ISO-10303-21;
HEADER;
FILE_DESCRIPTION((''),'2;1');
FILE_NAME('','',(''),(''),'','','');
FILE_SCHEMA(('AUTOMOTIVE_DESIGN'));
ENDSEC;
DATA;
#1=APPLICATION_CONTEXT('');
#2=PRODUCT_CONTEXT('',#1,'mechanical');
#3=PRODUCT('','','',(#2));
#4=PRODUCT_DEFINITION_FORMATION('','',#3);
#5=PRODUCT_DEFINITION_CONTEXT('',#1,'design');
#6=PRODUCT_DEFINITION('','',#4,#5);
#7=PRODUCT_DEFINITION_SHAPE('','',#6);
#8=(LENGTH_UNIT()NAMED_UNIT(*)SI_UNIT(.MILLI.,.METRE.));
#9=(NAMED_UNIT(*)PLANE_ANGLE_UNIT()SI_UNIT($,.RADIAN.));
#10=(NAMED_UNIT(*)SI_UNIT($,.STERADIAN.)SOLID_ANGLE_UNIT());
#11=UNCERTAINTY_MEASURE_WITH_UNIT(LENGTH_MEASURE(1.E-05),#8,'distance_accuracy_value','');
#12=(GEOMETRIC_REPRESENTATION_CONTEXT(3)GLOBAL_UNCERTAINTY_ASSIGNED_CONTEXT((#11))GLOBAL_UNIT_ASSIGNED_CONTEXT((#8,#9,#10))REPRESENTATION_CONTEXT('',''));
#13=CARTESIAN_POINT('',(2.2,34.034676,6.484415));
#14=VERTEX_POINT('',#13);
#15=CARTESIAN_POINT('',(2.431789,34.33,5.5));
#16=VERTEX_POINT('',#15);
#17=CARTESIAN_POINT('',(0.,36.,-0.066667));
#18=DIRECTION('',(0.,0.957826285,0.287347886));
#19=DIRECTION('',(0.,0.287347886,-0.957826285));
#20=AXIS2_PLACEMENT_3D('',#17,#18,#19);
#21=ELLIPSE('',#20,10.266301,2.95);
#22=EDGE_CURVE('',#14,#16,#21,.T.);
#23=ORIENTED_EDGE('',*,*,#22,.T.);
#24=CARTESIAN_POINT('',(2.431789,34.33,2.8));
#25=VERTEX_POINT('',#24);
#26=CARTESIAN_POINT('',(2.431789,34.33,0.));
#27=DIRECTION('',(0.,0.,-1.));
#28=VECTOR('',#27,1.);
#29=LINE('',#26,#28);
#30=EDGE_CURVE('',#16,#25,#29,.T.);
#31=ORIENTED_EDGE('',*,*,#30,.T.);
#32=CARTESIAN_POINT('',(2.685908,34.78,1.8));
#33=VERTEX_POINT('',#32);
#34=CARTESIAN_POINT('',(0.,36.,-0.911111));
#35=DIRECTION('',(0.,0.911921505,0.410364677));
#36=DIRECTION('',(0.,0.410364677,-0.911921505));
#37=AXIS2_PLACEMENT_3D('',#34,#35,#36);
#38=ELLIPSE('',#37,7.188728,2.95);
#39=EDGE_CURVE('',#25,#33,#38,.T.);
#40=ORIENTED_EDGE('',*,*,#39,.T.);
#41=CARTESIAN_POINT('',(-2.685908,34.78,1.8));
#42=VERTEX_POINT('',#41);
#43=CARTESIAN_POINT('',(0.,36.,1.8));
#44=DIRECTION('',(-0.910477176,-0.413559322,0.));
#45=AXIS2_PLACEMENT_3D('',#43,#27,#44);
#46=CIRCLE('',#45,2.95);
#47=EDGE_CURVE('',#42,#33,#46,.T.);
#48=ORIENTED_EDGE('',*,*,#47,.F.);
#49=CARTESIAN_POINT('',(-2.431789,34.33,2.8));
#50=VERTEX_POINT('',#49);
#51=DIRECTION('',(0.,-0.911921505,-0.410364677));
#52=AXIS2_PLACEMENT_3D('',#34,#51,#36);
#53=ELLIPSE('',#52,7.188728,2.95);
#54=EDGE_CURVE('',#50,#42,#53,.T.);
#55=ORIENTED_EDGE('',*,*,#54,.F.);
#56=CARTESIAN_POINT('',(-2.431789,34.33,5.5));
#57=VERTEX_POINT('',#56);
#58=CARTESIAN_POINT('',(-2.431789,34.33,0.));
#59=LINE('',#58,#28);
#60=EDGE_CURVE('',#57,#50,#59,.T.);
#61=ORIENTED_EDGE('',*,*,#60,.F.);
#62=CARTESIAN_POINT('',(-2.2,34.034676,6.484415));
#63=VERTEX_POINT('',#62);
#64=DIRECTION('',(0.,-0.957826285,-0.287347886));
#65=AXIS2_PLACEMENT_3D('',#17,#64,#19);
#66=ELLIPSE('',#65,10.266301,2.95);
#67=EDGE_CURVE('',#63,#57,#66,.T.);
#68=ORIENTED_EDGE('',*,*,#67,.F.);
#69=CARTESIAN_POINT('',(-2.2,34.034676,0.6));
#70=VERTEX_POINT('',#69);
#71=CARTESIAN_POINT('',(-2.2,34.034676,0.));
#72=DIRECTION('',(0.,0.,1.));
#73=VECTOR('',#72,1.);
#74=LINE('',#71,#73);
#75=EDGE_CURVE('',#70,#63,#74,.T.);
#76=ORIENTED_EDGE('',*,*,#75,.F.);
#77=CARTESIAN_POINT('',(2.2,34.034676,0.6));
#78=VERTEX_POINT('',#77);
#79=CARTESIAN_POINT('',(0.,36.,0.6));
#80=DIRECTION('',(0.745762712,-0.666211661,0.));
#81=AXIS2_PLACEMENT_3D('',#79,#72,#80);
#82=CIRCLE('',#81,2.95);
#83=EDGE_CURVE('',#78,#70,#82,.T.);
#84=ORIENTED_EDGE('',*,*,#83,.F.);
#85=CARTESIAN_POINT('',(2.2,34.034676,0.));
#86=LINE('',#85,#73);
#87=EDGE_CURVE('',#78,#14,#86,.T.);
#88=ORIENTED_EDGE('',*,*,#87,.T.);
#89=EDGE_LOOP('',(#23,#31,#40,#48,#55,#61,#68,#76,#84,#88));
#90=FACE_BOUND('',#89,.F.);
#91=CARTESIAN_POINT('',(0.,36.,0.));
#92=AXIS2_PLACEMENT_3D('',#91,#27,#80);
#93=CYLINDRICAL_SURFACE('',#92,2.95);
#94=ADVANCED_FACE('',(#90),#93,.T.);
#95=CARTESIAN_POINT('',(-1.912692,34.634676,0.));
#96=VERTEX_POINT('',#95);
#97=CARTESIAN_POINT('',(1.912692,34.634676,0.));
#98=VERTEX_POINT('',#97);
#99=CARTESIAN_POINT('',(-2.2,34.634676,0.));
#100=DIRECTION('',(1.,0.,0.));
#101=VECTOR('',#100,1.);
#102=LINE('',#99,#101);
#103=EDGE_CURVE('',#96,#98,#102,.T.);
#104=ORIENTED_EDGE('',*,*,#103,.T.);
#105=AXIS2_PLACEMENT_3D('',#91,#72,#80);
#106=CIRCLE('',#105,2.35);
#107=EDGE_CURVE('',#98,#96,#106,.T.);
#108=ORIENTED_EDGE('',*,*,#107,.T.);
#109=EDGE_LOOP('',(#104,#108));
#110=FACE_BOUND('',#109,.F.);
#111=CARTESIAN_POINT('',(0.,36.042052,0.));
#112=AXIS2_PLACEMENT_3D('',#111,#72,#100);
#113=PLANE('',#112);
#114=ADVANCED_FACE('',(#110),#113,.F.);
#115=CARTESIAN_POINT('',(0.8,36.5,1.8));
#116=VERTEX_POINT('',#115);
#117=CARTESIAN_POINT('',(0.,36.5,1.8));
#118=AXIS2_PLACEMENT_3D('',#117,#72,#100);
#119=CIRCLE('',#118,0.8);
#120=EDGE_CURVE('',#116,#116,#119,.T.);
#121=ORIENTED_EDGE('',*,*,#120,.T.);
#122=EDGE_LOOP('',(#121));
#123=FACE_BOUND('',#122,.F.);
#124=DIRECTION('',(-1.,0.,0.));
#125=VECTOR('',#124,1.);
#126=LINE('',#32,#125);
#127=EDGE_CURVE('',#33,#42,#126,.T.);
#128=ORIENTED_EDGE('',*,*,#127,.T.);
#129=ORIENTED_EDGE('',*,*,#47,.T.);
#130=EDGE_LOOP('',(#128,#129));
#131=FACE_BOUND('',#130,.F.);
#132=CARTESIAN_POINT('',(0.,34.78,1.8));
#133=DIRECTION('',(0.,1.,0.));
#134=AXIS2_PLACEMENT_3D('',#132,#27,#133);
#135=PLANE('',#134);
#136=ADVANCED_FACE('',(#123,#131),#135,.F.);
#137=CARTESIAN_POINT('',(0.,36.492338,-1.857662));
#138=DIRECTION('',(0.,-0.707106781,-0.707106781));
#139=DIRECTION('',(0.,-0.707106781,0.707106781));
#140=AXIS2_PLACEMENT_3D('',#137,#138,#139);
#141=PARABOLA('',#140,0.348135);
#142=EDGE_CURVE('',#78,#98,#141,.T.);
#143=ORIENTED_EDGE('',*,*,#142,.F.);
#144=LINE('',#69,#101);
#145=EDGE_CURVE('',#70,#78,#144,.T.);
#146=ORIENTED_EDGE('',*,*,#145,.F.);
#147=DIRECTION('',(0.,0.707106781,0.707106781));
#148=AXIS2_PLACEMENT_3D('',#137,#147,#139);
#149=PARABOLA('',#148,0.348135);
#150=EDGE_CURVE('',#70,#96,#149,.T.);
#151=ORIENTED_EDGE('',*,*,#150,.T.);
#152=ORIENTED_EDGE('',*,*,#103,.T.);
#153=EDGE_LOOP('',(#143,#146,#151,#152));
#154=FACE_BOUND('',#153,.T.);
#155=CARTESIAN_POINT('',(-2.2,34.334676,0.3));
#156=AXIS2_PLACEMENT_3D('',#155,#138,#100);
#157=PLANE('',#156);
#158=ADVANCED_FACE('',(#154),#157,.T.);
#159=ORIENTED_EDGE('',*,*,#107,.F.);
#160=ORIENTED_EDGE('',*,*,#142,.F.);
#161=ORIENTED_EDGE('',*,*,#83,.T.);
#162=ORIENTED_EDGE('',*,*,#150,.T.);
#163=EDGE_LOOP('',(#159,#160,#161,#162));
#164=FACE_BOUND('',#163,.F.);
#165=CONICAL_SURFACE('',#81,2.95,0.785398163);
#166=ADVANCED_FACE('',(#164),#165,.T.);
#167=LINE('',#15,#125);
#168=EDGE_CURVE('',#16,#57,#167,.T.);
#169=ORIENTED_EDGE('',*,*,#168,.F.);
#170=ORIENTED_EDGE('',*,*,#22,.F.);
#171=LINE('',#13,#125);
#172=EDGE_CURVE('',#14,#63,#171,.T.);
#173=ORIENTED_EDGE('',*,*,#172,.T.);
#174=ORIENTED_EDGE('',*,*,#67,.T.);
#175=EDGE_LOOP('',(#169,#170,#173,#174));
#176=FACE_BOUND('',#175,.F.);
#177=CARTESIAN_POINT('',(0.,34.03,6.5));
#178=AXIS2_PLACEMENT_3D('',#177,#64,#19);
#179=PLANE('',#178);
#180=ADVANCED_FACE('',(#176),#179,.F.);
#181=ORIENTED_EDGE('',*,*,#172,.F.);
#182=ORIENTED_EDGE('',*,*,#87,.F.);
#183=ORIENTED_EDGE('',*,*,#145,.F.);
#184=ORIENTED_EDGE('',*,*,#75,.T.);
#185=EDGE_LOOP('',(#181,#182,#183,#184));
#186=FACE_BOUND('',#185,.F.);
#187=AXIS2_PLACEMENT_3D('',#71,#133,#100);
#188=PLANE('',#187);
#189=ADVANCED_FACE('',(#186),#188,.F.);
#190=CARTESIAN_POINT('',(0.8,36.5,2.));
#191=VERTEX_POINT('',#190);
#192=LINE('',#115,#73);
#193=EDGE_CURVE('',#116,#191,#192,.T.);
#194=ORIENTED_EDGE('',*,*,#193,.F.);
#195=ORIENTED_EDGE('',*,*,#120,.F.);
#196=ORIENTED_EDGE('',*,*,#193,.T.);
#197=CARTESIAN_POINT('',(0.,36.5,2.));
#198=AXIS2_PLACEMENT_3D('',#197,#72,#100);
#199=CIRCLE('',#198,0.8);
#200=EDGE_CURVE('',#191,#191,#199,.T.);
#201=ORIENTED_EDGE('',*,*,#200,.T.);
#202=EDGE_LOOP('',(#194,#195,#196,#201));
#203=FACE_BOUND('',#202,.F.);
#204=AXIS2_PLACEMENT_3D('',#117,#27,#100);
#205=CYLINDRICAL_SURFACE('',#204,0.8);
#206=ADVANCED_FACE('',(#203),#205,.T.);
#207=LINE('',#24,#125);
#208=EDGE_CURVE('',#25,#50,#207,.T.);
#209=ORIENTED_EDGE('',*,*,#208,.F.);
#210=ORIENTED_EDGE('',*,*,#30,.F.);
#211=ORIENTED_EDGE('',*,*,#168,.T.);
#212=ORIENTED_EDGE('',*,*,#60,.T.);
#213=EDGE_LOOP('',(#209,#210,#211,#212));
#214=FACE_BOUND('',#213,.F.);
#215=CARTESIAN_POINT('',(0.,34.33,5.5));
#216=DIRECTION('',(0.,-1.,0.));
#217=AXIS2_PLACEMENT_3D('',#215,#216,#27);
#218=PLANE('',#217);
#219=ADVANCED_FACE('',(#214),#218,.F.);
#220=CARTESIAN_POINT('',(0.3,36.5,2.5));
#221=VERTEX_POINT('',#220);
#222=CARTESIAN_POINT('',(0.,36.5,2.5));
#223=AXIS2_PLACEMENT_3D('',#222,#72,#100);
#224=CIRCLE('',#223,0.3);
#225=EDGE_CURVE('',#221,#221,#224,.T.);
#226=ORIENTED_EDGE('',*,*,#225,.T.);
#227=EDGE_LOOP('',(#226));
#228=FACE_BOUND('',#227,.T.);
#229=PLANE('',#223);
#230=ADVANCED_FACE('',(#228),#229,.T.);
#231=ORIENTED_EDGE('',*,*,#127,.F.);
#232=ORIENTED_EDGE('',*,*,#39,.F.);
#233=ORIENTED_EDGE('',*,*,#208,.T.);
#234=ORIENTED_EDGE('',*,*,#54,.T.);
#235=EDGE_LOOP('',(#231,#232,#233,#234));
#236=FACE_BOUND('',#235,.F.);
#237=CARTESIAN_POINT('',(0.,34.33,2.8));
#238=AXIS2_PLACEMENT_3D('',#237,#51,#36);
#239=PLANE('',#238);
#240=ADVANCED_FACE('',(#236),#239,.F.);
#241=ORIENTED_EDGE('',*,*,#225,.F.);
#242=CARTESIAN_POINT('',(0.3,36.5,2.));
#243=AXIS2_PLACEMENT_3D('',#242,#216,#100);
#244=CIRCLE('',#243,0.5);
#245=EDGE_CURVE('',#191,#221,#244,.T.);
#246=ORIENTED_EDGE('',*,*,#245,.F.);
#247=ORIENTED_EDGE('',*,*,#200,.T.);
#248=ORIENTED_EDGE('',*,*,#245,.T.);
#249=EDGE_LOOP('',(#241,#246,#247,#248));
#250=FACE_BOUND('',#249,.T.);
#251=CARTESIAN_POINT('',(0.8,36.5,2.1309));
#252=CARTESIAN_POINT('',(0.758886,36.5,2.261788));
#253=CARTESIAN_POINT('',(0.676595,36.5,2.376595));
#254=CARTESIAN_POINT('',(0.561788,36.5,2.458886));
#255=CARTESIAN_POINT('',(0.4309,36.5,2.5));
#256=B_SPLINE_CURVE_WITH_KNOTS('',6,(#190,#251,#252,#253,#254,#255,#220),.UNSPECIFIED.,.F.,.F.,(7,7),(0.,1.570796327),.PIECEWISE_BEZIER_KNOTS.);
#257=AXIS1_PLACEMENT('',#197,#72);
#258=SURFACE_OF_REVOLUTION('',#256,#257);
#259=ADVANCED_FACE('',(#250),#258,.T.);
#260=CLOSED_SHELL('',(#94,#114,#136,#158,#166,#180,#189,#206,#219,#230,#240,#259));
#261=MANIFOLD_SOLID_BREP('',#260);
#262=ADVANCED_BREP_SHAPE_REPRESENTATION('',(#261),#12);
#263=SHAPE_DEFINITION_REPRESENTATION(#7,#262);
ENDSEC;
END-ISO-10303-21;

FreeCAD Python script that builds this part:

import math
import FreeCAD as App
import Part
import Sketcher
from FreeCAD import Vector
Q = App.Units.Quantity


def edges_at(feature, points):
    """Names of the edges that pass closest to the given points."""
    edges = feature.Shape.Edges
    near = lambda p: min(range(len(edges)), key=lambda i: edges[i].distToShape(Part.Vertex(*p))[0])
    return sorted({f"Edge{near(p) + 1}" for p in points})


def add_polygon(sketch, points):
    """Adds a closed chain of lines whose ends are joined by coincident constraints."""
    first, n = sketch.GeometryCount, len(points)
    for a, b in zip(points, points[1:] + points[:1]):
        sketch.addGeometry(Part.LineSegment(App.Vector(*a, 0), App.Vector(*b, 0)), False)
    for i in range(n):
        sketch.addConstraint(Sketcher.Constraint("Coincident", first + i, 2, first + (i + 1) % n, 1))

doc = App.newDocument("Part")
params = doc.addObject("Spreadsheet::Sheet", "Params")
for row, (alias, value) in enumerate([
    ("sketch1_radius", "2.95 mm"),
    ("sketch1_width", "4.4 mm"),
    ("pad1_length", "6.5 mm"),
    ("sketch2_height", "2.7 mm"),
    ("sketch2_height2", "4.7 mm"),
    ("sketch2_width", "5.22 mm"),
    ("sketch2_width2", "5.97 mm"),
    ("sketch3_diameter", "1.6 mm"),
    ("pad2_length", "0.7 mm"),
    ("fillet_radius", "0.5 mm"),
    ("chamfer_size", "0.6 mm"),
], start=1):
    params.set(f"A{row}", alias)
    params.set(f"B{row}", "=" + value)
    params.setAlias(f"B{row}", alias)

body = doc.addObject("PartDesign::Body", "Body")

# Sketch on XY plane
sketch1 = body.newObject("Sketcher::SketchObject", "Sketch")
sketch1.AttachmentSupport = (doc.getObject("XY_Plane"), [""])
sketch1.MapMode = "FlatFace"
sketch1.addGeometry([
    Part.ArcOfCircle(Part.Circle(Vector(0, 0, 0), Vector(0, 0, 1), 3), math.radians(-42), math.radians(222)),
    Part.LineSegment(Vector(-2.2, -2, 0), Vector(2.2, -2, 0)),
], False)
sketch1.addConstraint([
    Sketcher.Constraint("Coincident", 0, 1, 1, 2),
    Sketcher.Constraint("Coincident", 1, 1, 0, 2),
    Sketcher.Constraint("Horizontal", 1),
    Sketcher.Constraint("Coincident", 0, 3, -1, 1),
    Sketcher.Constraint("Radius", 0, Q("2.95 mm")),
    Sketcher.Constraint("DistanceX", 1, 1, 1, 2, Q("4.4 mm")),
])
sketch1.setExpression("Constraints[4]", "Params.sketch1_radius")
sketch1.setExpression("Constraints[5]", "Params.sketch1_width")
pad1 = body.newObject("PartDesign::Pad", "Pad")
pad1.Profile = sketch1
pad1.setExpression("Length", "Params.pad1_length")

# Sketch on YZ plane
sketch2 = body.newObject("Sketcher::SketchObject", "Sketch001")
sketch2.AttachmentSupport = (doc.getObject("YZ_Plane"), [""])
sketch2.MapMode = "FlatFace"
add_polygon(sketch2, [(-2, 6.5), (-1.7, 5.5), (-1.7, 2.8), (-1.2, 1.8), (4, 1.8), (4, 6.5)])  # lines 0-5
sketch2.addConstraint([
    Sketcher.Constraint("Vertical", 1),
    Sketcher.Constraint("Horizontal", 3),
    Sketcher.Constraint("Vertical", 4),
    Sketcher.Constraint("Horizontal", 5),
    Sketcher.Constraint("DistanceY", 1, 2, 1, 1, Q("2.7 mm")),
    Sketcher.Constraint("DistanceY", 4, 1, 4, 2, Q("4.7 mm")),
    Sketcher.Constraint("DistanceX", -1, 1, 3, 2, Q("4 mm")),
    Sketcher.Constraint("DistanceY", 2, 2, 1, 2, Q("1 mm")),
    Sketcher.Constraint("DistanceX", 3, 1, 3, 2, Q("5.22 mm")),
    Sketcher.Constraint("DistanceX", 5, 2, 5, 1, Q("5.97 mm")),
    Sketcher.Constraint("DistanceY", -1, 1, 0, 2, Q("5.5 mm")),
    Sketcher.Constraint("DistanceX", 5, 2, 0, 2, Q("0.3 mm")),
])
sketch2.setExpression("Constraints[10]", "Params.sketch2_height")
sketch2.setExpression("Constraints[11]", "Params.sketch2_height2")
sketch2.setExpression("Constraints[14]", "Params.sketch2_width")
sketch2.setExpression("Constraints[15]", "Params.sketch2_width2")
pocket1 = body.newObject("PartDesign::Pocket", "Pocket")
pocket1.Profile = sketch2
pocket1.Type = "ThroughAll"
pocket1.Midplane = True

# Sketch on XY plane
sketch3 = body.newObject("Sketcher::SketchObject", "Sketch002")
sketch3.AttachmentSupport = (doc.getObject("XY_Plane"), [""])
sketch3.MapMode = "FlatFace"
sketch3.AttachmentOffset = App.Placement(Vector(0, 0, 1.8), App.Rotation())
sketch3.addGeometry(Part.Circle(Vector(0, 0.5, 0), Vector(0, 0, 1), 0.8), False)
sketch3.addConstraint([
    Sketcher.Constraint("PointOnObject", 0, 3, -2),
    Sketcher.Constraint("Diameter", 0, Q("1.6 mm")),
    Sketcher.Constraint("DistanceY", -1, 1, 0, 3, Q("0.5 mm")),
])
sketch3.setExpression("Constraints[1]", "Params.sketch3_diameter")
pad2 = body.newObject("PartDesign::Pad", "Pad001")
pad2.Profile = sketch3
pad2.setExpression("Length", "Params.pad2_length")
doc.recompute()

fillet = body.newObject("PartDesign::Fillet", "Fillet")
fillet.Base = (pad2, edges_at(pad2, [(-0.8, 0.5, 2.5)]))
fillet.setExpression("Radius", "Params.fillet_radius")
doc.recompute()

chamfer = body.newObject("PartDesign::Chamfer", "Chamfer")
chamfer.Base = (fillet, edges_at(fillet, [(0, 2.95, 0), (0, -1.965, 0)]))
chamfer.setExpression("Size", "Params.chamfer_size")
body2 = doc.addObject("PartDesign::Body", "Body001")
doc.recompute()

body.Placement = App.Placement(Vector(0, 36, 0), App.Rotation(Vector(0, 0, 1), 0))
boolean = body2.newObject("PartDesign::Boolean", "Boolean")
boolean.Type = "Fuse"
boolean.addObjects([body])

doc.recompute()
